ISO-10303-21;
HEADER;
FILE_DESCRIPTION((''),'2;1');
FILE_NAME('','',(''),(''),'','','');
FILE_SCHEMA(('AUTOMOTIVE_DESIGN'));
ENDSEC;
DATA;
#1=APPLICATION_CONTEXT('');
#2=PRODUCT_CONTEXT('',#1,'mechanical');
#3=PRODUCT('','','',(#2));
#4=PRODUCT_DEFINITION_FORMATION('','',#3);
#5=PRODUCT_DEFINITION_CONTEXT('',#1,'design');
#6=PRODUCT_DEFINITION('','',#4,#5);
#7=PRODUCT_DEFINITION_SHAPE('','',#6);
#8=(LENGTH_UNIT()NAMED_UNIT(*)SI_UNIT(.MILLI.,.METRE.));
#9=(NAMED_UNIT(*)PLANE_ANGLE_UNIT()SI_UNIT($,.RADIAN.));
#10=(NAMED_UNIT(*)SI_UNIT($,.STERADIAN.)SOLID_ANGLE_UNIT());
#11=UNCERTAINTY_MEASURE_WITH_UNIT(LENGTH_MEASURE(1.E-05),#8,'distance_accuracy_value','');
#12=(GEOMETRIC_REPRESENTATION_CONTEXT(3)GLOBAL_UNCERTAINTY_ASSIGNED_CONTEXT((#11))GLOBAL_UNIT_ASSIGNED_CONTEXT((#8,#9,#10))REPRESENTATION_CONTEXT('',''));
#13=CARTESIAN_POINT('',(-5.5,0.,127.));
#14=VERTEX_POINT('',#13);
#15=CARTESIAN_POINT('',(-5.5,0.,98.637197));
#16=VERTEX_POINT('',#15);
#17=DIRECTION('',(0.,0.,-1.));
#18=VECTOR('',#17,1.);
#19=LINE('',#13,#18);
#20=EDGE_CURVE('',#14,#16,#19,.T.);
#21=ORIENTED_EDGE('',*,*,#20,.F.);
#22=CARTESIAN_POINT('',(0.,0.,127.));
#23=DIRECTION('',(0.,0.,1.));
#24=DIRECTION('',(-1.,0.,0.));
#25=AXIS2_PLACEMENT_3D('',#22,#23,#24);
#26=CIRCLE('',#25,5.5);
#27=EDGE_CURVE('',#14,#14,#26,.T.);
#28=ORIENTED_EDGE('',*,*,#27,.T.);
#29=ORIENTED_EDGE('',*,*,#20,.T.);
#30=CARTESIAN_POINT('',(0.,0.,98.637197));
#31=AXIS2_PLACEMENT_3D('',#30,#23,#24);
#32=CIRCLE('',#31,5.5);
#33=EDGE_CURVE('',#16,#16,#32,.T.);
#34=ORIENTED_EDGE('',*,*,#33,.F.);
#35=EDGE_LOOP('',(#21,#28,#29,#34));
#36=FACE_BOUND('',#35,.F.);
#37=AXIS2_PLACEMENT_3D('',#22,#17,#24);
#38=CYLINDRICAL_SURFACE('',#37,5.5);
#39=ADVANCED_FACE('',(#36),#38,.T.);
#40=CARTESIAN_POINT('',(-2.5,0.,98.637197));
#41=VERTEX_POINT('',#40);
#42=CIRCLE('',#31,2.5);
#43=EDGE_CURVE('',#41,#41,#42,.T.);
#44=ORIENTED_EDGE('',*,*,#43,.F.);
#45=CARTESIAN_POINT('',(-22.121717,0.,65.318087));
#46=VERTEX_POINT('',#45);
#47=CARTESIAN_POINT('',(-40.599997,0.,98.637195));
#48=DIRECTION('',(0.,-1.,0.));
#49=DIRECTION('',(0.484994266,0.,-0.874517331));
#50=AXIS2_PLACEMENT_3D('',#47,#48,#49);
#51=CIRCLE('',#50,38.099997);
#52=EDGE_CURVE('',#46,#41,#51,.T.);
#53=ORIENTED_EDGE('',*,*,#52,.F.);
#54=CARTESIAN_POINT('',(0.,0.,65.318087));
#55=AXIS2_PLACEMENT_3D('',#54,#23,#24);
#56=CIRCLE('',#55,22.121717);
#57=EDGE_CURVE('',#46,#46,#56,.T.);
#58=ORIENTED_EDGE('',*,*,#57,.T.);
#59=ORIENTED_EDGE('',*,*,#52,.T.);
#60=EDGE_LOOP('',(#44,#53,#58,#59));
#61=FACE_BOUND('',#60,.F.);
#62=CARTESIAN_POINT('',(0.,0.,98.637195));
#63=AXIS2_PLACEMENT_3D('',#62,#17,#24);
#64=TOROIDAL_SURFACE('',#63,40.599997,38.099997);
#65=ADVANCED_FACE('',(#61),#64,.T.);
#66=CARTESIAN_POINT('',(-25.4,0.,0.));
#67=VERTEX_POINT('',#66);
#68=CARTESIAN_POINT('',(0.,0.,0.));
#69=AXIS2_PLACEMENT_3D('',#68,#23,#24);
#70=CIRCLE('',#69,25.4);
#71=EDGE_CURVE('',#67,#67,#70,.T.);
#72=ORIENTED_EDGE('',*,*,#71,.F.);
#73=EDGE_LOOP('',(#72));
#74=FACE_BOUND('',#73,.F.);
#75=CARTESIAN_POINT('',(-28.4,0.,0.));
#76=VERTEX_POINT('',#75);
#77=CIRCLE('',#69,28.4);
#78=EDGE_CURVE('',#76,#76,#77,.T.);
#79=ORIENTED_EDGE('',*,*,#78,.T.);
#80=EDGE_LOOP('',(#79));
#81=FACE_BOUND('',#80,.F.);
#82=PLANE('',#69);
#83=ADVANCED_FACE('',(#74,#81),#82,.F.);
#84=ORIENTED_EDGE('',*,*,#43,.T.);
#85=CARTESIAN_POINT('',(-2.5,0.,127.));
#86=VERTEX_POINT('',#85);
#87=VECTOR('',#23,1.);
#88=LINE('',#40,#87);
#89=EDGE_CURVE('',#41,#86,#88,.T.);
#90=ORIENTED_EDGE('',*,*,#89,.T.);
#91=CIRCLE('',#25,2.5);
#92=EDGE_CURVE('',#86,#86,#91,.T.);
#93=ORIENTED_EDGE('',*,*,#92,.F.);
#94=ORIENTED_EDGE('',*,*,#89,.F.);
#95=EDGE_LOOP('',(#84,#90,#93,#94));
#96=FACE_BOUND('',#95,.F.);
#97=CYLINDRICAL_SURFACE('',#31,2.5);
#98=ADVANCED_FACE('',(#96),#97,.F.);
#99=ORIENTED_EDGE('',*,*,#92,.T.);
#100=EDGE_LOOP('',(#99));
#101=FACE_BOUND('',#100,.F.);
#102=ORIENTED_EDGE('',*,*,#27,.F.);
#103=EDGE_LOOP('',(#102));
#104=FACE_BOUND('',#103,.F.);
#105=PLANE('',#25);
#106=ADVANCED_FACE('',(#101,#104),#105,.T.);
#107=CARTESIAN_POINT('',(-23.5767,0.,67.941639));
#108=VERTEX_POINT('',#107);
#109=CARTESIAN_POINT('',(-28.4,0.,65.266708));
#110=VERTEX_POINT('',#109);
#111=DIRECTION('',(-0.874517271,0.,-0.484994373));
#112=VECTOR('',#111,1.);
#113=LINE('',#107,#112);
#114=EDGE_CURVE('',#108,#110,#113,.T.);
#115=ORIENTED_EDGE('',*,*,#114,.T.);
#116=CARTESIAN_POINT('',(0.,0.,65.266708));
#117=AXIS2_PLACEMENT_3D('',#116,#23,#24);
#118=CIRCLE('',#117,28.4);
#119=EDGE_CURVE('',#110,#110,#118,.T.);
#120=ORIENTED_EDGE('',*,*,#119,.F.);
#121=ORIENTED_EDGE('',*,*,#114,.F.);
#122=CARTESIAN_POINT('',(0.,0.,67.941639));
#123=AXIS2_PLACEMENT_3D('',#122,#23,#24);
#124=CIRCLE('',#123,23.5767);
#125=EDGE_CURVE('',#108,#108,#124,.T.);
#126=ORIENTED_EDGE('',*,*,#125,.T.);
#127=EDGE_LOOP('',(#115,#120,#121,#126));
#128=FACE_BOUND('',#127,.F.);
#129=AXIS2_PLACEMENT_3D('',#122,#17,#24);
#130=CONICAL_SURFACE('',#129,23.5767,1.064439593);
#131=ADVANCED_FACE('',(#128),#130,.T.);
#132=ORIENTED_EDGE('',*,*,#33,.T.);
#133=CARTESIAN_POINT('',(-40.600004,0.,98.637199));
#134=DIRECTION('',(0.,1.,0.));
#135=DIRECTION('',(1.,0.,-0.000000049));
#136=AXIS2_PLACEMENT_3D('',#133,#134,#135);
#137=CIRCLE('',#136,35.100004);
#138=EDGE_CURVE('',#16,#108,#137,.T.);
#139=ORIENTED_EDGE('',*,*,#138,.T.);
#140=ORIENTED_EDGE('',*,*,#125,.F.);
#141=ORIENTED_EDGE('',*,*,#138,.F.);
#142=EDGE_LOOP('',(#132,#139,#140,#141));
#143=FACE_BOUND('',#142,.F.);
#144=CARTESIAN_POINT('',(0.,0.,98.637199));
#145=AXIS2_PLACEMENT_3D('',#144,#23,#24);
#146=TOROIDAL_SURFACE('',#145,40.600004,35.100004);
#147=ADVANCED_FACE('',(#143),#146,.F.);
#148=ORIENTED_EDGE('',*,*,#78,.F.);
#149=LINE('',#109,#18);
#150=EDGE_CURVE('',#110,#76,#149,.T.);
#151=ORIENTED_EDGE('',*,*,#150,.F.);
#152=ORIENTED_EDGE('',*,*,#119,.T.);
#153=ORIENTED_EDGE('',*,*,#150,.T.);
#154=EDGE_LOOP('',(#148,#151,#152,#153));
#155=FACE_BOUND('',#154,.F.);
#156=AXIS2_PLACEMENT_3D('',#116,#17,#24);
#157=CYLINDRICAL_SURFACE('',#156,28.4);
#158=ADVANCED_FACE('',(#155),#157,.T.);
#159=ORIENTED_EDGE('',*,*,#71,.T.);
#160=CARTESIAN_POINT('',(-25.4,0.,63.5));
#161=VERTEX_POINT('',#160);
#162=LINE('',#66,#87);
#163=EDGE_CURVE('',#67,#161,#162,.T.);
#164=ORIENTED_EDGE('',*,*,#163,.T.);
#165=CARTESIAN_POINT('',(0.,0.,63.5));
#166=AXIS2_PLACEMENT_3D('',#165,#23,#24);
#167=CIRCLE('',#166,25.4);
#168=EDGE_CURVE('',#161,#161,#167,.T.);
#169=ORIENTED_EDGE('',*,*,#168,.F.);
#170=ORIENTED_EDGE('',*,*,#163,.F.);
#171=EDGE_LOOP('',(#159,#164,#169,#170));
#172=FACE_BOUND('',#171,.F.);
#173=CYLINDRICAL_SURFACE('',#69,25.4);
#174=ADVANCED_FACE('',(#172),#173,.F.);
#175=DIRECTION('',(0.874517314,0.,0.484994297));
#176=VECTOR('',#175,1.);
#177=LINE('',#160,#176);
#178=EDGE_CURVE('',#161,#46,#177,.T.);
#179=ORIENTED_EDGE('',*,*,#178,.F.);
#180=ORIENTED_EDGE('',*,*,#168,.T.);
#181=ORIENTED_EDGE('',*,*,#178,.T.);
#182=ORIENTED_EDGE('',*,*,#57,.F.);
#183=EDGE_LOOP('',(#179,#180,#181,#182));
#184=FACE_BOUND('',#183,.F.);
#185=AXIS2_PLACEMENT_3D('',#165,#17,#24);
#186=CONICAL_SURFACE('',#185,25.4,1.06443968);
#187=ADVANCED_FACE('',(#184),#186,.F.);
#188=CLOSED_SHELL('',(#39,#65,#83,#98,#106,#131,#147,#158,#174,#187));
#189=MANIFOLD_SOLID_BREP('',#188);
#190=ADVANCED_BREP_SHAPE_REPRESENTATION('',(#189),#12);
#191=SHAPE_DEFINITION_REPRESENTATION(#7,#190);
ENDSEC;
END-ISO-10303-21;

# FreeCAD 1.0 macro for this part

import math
import FreeCAD as App
import Part
import Sketcher
from FreeCAD import Vector

doc = App.newDocument("Part")
body = doc.addObject("PartDesign::Body", "Body")

# Sketch on XZ plane
sketch1 = doc.addObject("Sketcher::SketchObject", "Sketch")
body.addObject(sketch1)
sketch1.AttachmentSupport = (doc.XZ_Plane, [""])
sketch1.MapMode = "FlatFace"
sketch1.addGeometry([
    Part.LineSegment(Vector(-28.4, 0, 0), Vector(-25.4, 0, 0)),  # 0
    Part.LineSegment(Vector(-25.4, 0, 0), Vector(-25.4, 63.5, 0)),  # 1
    Part.LineSegment(Vector(-25.4, 63.5, 0), Vector(-22.121717, 65.318087, 0)),  # 2
    Part.ArcOfCircle(Part.Circle(Vector(-40.599997, 98.637195, 0), Vector(0, 0, 1), 38.099997), math.radians(-60.987903), math.radians(0.000003)),  # 3
    Part.LineSegment(Vector(-2.5, 98.637197, 0), Vector(-2.5, 127, 0)),  # 4
    Part.LineSegment(Vector(-2.5, 127, 0), Vector(-5.5, 127, 0)),  # 5
    Part.LineSegment(Vector(-5.5, 127, 0), Vector(-5.5, 98.637197, 0)),  # 6
    Part.ArcOfCircle(Part.Circle(Vector(-40.600004, 98.637199, 0), Vector(0, 0, 1), 35.100004), math.radians(-60.987897), math.radians(-0.000003)),  # 7
    Part.LineSegment(Vector(-23.5767, 67.941639, 0), Vector(-28.4, 65.266708, 0)),  # 8
    Part.LineSegment(Vector(-28.4, 65.266708, 0), Vector(-28.4, 0, 0)),  # 9
], False)
sketch1.addConstraint([
    Sketcher.Constraint("Coincident", 0, 2, 1, 1),
    Sketcher.Constraint("Coincident", 1, 2, 2, 1),
    Sketcher.Constraint("Coincident", 2, 2, 3, 1),
    Sketcher.Constraint("Coincident", 3, 2, 4, 1),
    Sketcher.Constraint("Coincident", 4, 2, 5, 1),
    Sketcher.Constraint("Coincident", 5, 2, 6, 1),
    Sketcher.Constraint("Coincident", 6, 2, 7, 2),
    Sketcher.Constraint("Coincident", 7, 1, 8, 1),
    Sketcher.Constraint("Coincident", 8, 2, 9, 1),
    Sketcher.Constraint("Coincident", 9, 2, 0, 1),
    Sketcher.Constraint("Horizontal", 0),
    Sketcher.Constraint("Vertical", 1),
    Sketcher.Constraint("Vertical", 4),
    Sketcher.Constraint("Horizontal", 5),
    Sketcher.Constraint("Vertical", 6),
    Sketcher.Constraint("Vertical", 9),
    Sketcher.Constraint("Coincident", 7, 3, 3, 3),
    Sketcher.Constraint("PointOnObject", 0, 2, -1),
    Sketcher.Constraint("DistanceX", 0, 1, 0, 2, 3.0),
    Sketcher.Constraint("DistanceX", 5, 2, 5, 1, 3.0),
    Sketcher.Constraint("DistanceY", 1, 1, 1, 2, 63.5),
    Sketcher.Constraint("DistanceY", -1, 1, 4, 2, 127.0),
    Sketcher.Constraint("DistanceX", 0, 2, -1, 1, 25.4),
    Sketcher.Constraint("DistanceX", 3, 2, -1, 1, 2.5),
    Sketcher.Constraint("Radius", 3, 38.099997),
    Sketcher.Constraint("DistanceY", -1, 1, 7, 3, 98.637199),
    Sketcher.Constraint("DistanceX", 7, 1, -1, 1, 23.5767),
    Sketcher.Constraint("DistanceY", 4, 1, 4, 2, 28.362803),
    Sketcher.Constraint("DistanceY", 6, 2, 6, 1, 28.362803),
    Sketcher.Constraint("DistanceY", 9, 2, 9, 1, 65.266708),
    Sketcher.Constraint("DistanceX", 3, 3, 2, 2, 18.47828),
])
revolution = doc.addObject("PartDesign::Revolution", "Revolution")
body.addObject(revolution)
revolution.Profile = sketch1
revolution.ReferenceAxis = (sketch1, ["V_Axis"])
revolution.Angle = 360

doc.recompute()
